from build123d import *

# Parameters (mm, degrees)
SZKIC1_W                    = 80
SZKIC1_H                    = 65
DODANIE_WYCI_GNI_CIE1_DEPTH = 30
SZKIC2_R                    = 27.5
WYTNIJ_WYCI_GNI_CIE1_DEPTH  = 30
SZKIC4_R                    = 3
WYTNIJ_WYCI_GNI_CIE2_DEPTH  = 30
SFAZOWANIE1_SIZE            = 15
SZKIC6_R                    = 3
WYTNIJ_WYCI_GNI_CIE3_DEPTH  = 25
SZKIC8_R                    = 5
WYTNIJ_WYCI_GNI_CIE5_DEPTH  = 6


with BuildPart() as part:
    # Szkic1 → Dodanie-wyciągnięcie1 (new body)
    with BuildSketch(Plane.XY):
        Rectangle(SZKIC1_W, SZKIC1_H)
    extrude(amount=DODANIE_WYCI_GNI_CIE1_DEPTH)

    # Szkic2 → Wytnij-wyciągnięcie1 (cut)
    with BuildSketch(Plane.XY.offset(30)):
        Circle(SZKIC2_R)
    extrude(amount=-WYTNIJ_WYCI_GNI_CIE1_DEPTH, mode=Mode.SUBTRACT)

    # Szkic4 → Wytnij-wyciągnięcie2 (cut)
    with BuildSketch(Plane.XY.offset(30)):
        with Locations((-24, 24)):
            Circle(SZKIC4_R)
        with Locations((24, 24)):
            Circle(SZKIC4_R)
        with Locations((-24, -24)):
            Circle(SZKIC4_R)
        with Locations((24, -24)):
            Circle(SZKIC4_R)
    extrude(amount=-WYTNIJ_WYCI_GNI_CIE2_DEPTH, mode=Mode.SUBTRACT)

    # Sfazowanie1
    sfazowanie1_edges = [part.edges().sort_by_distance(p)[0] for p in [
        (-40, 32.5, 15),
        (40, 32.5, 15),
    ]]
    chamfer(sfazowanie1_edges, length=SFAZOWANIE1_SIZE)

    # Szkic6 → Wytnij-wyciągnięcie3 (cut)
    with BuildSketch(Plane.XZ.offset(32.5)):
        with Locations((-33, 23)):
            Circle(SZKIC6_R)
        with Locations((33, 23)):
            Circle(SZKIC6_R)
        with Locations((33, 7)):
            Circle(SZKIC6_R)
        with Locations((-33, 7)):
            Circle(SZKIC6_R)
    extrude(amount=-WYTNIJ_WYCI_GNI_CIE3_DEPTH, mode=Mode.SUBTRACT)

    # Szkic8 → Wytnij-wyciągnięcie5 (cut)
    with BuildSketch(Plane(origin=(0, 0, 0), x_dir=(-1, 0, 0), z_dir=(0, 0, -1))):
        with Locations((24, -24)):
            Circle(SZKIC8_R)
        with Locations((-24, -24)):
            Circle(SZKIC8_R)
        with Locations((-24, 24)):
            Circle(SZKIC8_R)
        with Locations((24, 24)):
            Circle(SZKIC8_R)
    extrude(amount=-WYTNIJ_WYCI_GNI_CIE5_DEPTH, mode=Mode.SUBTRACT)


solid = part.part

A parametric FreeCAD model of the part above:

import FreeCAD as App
import Part
import Sketcher


def edges_at(feature, points):
    """Names of the edges that pass closest to the given points."""
    edges = feature.Shape.Edges
    near = lambda p: min(range(len(edges)), key=lambda i: edges[i].distToShape(Part.Vertex(*p))[0])
    return sorted({f"Edge{near(p) + 1}" for p in points})


def add_polygon(sketch, points):
    """Adds a closed chain of lines whose ends are joined by coincident constraints."""
    first, n = sketch.GeometryCount, len(points)
    for a, b in zip(points, points[1:] + points[:1]):
        sketch.addGeometry(Part.LineSegment(App.Vector(*a, 0), App.Vector(*b, 0)), False)
    for i in range(n):
        sketch.addConstraint(Sketcher.Constraint("Coincident", first + i, 2, first + (i + 1) % n, 1))

doc = App.newDocument("Part")
body = doc.addObject("PartDesign::Body", "Body")

# Sketch on XY plane
sketch1 = doc.addObject("Sketcher::SketchObject", "Sketch")
body.addObject(sketch1)
sketch1.AttachmentSupport = (doc.XY_Plane, [""])
sketch1.MapMode = "FlatFace"
add_polygon(sketch1, [(-40, 32), (-40, -32), (40, -32), (40, 32)])  # lines 0-3
sketch1.addConstraint(Sketcher.Constraint("Vertical", 0))
sketch1.addConstraint(Sketcher.Constraint("Horizontal", 1))
sketch1.addConstraint(Sketcher.Constraint("Vertical", 2))
sketch1.addConstraint(Sketcher.Constraint("Horizontal", 3))
sketch1.addConstraint(Sketcher.Constraint("Symmetric", 0, 2, 2, 2, -1, 1))
sketch1.addConstraint(Sketcher.Constraint("DistanceX", 1, 1, 1, 2, 80.0))
sketch1.addConstraint(Sketcher.Constraint("DistanceY", 0, 2, 0, 1, 65.0))
pad1 = doc.addObject("PartDesign::Pad", "Pad")
body.addObject(pad1)
pad1.Profile = sketch1
pad1.Length = 30

# Sketch on XY plane
sketch2 = doc.addObject("Sketcher::SketchObject", "Sketch001")
body.addObject(sketch2)
sketch2.AttachmentSupport = (doc.XY_Plane, [""])
sketch2.MapMode = "FlatFace"
sketch2.AttachmentOffset = App.Placement(App.Vector(0, 0, 30), App.Rotation())
sketch2.addGeometry(Part.Circle(App.Vector(0, 0, 0), App.Vector(0, 0, 1), 28), False)
sketch2.addConstraint(Sketcher.Constraint("Coincident", 0, 3, -1, 1))
sketch2.addConstraint(Sketcher.Constraint("Diameter", 0, 55.0))
pocket1 = doc.addObject("PartDesign::Pocket", "Pocket")
body.addObject(pocket1)
pocket1.Profile = sketch2
pocket1.Length = 30

# Sketch on XY plane
sketch3 = doc.addObject("Sketcher::SketchObject", "Sketch002")
body.addObject(sketch3)
sketch3.AttachmentSupport = (doc.XY_Plane, [""])
sketch3.MapMode = "FlatFace"
sketch3.AttachmentOffset = App.Placement(App.Vector(0, 0, 30), App.Rotation())
sketch3.addGeometry(Part.Circle(App.Vector(-24, 24, 0), App.Vector(0, 0, 1), 3), False)
sketch3.addGeometry(Part.Circle(App.Vector(24, 24, 0), App.Vector(0, 0, 1), 3), False)
sketch3.addGeometry(Part.Circle(App.Vector(-24, -24, 0), App.Vector(0, 0, 1), 3), False)
sketch3.addGeometry(Part.Circle(App.Vector(24, -24, 0), App.Vector(0, 0, 1), 3), False)
sketch3.addConstraint(Sketcher.Constraint("Equal", 0, 1))
sketch3.addConstraint(Sketcher.Constraint("Equal", 1, 2))
sketch3.addConstraint(Sketcher.Constraint("Equal", 2, 3))
sketch3.addConstraint(Sketcher.Constraint("Symmetric", 1, 3, 2, 3, -1, 1))
sketch3.addConstraint(Sketcher.Constraint("Symmetric", 0, 3, 3, 3, -1, 1))
sketch3.addConstraint(Sketcher.Constraint("Symmetric", 0, 3, 1, 3, -2))
sketch3.addConstraint(Sketcher.Constraint("Diameter", 0, 6.0))
sketch3.addConstraint(Sketcher.Constraint("DistanceX", 0, 3, -1, 1, 24.0))
sketch3.addConstraint(Sketcher.Constraint("DistanceY", -1, 1, 0, 3, 24.0))
pocket2 = doc.addObject("PartDesign::Pocket", "Pocket001")
body.addObject(pocket2)
pocket2.Profile = sketch3
pocket2.Length = 30
doc.recompute()

chamfer = doc.addObject("PartDesign::Chamfer", "Chamfer")
body.addObject(chamfer)
chamfer.Base = (pocket2, edges_at(pocket2, [(-40, 32.5, 15), (40, 32.5, 15)]))
chamfer.Size = 15

# Sketch on XZ plane
sketch4 = doc.addObject("Sketcher::SketchObject", "Sketch003")
body.addObject(sketch4)
sketch4.AttachmentSupport = (doc.XZ_Plane, [""])
sketch4.MapMode = "FlatFace"
sketch4.AttachmentOffset = App.Placement(App.Vector(0, 0, 32.5), App.Rotation())
sketch4.addGeometry(Part.Circle(App.Vector(-33, 23, 0), App.Vector(0, 0, 1), 3), False)
sketch4.addGeometry(Part.Circle(App.Vector(33, 23, 0), App.Vector(0, 0, 1), 3), False)
sketch4.addGeometry(Part.Circle(App.Vector(33, 7, 0), App.Vector(0, 0, 1), 3), False)
sketch4.addGeometry(Part.Circle(App.Vector(-33, 7, 0), App.Vector(0, 0, 1), 3), False)
sketch4.addConstraint(Sketcher.Constraint("Equal", 0, 1))
sketch4.addConstraint(Sketcher.Constraint("Equal", 1, 2))
sketch4.addConstraint(Sketcher.Constraint("Equal", 2, 3))
sketch4.addConstraint(Sketcher.Constraint("Symmetric", 0, 3, 1, 3, -2))
sketch4.addConstraint(Sketcher.Constraint("Symmetric", 2, 3, 3, 3, -2))
sketch4.addConstraint(Sketcher.Constraint("Vertical", 1, 3, 2, 3))
sketch4.addConstraint(Sketcher.Constraint("Diameter", 0, 6.0))
sketch4.addConstraint(Sketcher.Constraint("DistanceX", 0, 3, -1, 1, 33.0))
sketch4.addConstraint(Sketcher.Constraint("DistanceY", -1, 1, 0, 3, 23.0))
sketch4.addConstraint(Sketcher.Constraint("DistanceY", -1, 1, 2, 3, 7.0))
pocket3 = doc.addObject("PartDesign::Pocket", "Pocket002")
body.addObject(pocket3)
pocket3.Profile = sketch4
pocket3.Length = 25

# Sketch on XY plane
sketch5 = doc.addObject("Sketcher::SketchObject", "Sketch004")
body.addObject(sketch5)
sketch5.AttachmentSupport = (doc.XY_Plane, [""])
sketch5.MapMode = "FlatFace"
sketch5.addGeometry(Part.Circle(App.Vector(-24, -24, 0), App.Vector(0, 0, 1), 5), False)
sketch5.addGeometry(Part.Circle(App.Vector(24, -24, 0), App.Vector(0, 0, 1), 5), False)
sketch5.addGeometry(Part.Circle(App.Vector(24, 24, 0), App.Vector(0, 0, 1), 5), False)
sketch5.addGeometry(Part.Circle(App.Vector(-24, 24, 0), App.Vector(0, 0, 1), 5), False)
sketch5.addConstraint(Sketcher.Constraint("Equal", 0, 1))
sketch5.addConstraint(Sketcher.Constraint("Equal", 1, 2))
sketch5.addConstraint(Sketcher.Constraint("Equal", 2, 3))
sketch5.addConstraint(Sketcher.Constraint("Symmetric", 0, 3, 2, 3, -1, 1))
sketch5.addConstraint(Sketcher.Constraint("Symmetric", 1, 3, 3, 3, -1, 1))
sketch5.addConstraint(Sketcher.Constraint("Symmetric", 0, 3, 1, 3, -2))
sketch5.addConstraint(Sketcher.Constraint("Diameter", 0, 10.0))
sketch5.addConstraint(Sketcher.Constraint("DistanceX", 0, 3, -1, 1, 24.0))
sketch5.addConstraint(Sketcher.Constraint("DistanceY", 0, 3, -1, 1, 24.0))
pocket4 = doc.addObject("PartDesign::Pocket", "Pocket003")
body.addObject(pocket4)
pocket4.Profile = sketch5
pocket4.Length = 6
pocket4.Reversed = True

doc.recompute()
